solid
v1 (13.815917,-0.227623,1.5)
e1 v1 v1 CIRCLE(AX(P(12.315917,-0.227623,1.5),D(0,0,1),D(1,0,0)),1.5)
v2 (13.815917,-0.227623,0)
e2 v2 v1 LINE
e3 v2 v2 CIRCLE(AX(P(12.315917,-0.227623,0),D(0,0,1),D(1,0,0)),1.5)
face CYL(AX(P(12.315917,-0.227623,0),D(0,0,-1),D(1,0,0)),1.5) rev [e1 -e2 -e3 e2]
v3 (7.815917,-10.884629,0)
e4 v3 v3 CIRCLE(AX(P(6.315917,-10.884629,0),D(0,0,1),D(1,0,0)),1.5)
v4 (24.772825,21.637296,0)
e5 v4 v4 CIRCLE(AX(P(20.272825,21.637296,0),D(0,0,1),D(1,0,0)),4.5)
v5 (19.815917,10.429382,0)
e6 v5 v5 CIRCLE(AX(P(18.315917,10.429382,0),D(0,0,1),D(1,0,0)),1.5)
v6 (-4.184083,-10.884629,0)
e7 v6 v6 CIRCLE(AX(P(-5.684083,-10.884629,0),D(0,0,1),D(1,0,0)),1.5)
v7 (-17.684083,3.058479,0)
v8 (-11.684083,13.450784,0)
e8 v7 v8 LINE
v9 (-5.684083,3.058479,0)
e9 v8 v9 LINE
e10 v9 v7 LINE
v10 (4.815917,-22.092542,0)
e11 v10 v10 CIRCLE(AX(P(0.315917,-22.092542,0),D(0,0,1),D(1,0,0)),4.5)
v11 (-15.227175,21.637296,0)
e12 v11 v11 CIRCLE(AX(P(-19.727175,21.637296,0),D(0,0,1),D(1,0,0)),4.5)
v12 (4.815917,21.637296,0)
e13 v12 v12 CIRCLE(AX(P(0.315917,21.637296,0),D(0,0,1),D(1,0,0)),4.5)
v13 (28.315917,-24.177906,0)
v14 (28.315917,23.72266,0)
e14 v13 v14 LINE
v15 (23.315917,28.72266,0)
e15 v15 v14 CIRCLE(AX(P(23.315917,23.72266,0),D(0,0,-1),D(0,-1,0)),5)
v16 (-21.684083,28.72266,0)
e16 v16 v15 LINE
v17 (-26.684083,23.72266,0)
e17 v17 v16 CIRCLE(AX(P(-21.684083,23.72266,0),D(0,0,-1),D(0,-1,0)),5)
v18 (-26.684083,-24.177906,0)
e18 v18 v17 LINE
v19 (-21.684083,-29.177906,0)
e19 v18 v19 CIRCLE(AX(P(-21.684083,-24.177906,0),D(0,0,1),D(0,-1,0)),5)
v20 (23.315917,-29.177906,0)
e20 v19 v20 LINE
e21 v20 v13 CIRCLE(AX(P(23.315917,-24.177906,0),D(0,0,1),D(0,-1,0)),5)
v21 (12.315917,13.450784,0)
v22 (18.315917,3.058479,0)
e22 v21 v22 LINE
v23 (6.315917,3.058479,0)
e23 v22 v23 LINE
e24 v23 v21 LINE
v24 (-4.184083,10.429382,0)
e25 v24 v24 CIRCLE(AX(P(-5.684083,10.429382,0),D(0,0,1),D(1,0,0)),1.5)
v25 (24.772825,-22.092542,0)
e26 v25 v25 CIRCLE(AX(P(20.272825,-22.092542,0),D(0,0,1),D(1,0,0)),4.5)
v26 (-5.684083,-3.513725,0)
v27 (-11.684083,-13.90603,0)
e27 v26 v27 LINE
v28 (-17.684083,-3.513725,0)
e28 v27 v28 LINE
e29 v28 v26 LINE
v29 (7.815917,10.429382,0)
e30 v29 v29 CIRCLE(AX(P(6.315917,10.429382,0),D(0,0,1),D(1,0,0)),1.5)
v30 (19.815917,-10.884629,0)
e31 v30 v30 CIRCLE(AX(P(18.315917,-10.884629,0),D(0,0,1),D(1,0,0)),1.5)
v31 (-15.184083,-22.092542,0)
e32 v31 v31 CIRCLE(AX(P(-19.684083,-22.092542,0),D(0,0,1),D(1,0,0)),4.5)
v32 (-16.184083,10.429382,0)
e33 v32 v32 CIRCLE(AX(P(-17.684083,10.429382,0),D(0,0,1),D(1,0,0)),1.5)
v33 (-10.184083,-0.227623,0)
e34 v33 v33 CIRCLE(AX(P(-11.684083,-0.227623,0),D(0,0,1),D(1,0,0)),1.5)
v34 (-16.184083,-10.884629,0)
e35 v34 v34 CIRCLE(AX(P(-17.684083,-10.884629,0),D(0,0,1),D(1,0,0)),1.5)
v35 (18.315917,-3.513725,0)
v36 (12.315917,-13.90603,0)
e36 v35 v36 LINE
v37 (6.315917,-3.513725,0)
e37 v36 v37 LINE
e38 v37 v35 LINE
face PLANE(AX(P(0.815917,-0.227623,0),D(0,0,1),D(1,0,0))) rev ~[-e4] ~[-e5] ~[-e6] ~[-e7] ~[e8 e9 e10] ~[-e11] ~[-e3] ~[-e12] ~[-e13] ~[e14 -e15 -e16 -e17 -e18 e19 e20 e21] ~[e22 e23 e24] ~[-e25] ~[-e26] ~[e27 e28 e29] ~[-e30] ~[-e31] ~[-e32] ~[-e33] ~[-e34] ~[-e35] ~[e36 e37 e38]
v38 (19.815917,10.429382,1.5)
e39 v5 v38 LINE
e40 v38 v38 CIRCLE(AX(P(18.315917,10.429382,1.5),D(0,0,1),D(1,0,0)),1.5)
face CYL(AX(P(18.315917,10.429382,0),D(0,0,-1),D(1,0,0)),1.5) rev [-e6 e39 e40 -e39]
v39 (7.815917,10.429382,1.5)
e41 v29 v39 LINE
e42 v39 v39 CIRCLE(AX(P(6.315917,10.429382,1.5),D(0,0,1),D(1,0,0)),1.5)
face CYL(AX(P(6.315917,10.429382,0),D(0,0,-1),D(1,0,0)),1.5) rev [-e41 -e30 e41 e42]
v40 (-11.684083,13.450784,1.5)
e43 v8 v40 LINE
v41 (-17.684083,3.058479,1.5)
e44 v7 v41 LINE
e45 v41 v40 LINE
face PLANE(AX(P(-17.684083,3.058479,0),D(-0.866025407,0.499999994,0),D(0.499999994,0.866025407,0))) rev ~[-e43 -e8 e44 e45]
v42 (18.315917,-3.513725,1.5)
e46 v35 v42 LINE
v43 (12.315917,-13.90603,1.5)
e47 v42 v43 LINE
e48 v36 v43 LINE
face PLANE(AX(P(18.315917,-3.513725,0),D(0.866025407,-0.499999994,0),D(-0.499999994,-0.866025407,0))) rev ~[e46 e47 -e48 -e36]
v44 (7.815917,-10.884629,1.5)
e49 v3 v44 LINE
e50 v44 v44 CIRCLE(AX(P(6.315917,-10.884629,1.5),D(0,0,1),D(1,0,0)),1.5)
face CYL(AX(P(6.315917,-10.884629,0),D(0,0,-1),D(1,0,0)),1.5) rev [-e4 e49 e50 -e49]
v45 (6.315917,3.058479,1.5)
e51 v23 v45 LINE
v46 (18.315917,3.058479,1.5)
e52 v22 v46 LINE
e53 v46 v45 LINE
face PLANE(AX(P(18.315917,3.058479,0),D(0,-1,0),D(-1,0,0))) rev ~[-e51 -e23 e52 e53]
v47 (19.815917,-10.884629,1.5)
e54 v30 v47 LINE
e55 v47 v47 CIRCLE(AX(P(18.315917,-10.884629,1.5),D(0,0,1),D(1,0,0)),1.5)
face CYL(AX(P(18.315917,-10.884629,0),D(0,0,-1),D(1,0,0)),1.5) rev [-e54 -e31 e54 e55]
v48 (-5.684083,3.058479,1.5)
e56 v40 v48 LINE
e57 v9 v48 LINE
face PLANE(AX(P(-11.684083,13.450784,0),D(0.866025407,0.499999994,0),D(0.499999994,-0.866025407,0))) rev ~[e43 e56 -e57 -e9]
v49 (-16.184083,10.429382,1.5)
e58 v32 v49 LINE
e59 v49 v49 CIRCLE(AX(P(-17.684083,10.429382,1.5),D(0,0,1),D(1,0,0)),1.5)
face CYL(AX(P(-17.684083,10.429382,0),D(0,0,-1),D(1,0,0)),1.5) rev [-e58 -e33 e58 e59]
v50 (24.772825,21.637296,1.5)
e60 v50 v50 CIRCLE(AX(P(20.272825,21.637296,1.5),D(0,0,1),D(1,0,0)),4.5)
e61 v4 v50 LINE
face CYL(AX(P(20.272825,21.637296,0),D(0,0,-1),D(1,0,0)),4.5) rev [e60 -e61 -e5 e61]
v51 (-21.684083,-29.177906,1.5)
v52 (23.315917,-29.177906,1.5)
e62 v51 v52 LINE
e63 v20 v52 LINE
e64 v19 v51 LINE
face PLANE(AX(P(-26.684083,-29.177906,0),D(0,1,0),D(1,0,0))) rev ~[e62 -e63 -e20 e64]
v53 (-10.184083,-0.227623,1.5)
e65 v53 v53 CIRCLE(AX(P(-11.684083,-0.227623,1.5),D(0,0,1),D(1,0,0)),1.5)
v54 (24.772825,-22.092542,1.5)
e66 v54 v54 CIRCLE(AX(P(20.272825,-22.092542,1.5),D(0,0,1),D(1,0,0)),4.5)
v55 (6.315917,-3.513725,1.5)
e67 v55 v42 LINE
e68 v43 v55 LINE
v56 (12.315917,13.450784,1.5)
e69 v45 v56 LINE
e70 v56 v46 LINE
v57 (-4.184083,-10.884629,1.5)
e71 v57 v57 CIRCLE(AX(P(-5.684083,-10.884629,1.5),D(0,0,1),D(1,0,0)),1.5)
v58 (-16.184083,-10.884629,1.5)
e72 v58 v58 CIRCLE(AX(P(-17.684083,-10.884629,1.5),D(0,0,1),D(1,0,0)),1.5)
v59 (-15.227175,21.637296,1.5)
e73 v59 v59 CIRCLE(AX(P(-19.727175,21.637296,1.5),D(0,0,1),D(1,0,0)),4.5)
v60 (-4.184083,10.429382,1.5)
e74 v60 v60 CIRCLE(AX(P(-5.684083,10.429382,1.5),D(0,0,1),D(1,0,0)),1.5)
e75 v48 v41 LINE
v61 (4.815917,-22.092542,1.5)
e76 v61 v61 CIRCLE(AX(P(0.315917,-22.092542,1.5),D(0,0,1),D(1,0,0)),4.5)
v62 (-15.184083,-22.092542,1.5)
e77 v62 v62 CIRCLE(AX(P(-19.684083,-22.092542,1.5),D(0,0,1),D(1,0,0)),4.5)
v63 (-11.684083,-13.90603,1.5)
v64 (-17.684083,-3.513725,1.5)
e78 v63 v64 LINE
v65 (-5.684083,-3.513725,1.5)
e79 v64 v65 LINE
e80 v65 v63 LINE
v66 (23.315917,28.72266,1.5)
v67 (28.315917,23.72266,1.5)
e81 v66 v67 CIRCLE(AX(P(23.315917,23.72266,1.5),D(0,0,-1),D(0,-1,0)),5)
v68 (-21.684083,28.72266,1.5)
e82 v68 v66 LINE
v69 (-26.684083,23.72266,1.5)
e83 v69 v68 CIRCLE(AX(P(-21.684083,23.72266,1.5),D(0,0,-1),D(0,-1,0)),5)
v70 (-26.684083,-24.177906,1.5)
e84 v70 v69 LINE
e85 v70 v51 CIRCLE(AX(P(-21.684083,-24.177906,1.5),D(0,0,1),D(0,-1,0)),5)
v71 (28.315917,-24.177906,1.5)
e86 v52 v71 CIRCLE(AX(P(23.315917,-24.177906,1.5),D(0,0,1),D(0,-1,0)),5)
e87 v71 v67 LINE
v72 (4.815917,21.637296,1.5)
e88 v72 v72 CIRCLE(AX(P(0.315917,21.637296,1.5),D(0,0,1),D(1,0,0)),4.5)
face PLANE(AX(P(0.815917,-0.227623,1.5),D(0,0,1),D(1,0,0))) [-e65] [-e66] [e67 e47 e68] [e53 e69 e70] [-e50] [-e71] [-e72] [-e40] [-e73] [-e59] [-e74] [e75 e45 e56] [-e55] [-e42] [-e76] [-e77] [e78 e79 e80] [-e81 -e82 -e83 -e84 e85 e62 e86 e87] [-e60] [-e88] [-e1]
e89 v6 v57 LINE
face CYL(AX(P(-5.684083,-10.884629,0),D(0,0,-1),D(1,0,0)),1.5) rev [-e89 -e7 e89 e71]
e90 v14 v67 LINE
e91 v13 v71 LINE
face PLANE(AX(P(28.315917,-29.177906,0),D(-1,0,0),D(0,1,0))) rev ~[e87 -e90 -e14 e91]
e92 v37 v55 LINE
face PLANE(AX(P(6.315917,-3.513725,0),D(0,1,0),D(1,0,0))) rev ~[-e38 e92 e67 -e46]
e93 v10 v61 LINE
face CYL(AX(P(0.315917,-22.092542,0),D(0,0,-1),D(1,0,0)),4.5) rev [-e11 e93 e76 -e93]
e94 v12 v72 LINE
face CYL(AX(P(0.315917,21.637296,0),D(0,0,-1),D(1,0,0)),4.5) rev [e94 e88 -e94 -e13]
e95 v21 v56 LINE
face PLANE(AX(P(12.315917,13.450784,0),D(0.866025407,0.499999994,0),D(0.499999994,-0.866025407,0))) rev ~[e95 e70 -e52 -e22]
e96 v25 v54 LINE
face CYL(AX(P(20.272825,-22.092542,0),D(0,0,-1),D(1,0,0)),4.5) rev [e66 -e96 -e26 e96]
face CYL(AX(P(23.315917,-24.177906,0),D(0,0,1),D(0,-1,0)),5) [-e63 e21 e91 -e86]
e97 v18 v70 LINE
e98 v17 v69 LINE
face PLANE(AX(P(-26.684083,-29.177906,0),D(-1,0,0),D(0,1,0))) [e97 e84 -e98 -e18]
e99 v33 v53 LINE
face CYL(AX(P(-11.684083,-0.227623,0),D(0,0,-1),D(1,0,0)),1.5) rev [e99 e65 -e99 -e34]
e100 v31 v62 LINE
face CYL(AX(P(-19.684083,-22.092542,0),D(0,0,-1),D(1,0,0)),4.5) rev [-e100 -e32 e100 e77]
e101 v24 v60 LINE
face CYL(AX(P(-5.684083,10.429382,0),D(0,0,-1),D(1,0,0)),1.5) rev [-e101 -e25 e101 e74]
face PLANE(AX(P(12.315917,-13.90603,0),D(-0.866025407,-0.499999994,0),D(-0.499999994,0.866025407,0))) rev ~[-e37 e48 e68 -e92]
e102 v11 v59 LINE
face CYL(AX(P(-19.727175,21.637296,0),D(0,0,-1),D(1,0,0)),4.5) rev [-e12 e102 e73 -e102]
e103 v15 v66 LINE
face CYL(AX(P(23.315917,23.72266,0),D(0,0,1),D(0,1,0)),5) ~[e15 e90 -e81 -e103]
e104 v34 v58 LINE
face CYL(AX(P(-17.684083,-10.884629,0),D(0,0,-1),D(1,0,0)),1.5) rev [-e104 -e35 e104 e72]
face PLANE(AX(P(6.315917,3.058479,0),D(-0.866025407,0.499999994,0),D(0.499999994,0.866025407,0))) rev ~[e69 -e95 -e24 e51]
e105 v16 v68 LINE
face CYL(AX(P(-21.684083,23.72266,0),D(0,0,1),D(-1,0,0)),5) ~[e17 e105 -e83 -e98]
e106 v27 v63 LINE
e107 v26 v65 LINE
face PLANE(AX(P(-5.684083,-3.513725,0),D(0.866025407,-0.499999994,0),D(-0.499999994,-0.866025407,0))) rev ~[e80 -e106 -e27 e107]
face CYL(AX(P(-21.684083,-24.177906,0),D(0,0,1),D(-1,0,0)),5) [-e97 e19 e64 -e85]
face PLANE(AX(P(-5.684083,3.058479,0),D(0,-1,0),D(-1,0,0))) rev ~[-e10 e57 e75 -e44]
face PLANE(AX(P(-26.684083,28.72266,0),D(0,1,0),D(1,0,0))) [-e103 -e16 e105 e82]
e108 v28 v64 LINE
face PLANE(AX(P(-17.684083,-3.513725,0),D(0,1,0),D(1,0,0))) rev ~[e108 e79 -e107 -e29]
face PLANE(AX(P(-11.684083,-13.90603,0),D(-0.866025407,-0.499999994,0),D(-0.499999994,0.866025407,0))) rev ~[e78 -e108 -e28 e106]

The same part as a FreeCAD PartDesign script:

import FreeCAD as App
import Part
import Sketcher
Q = App.Units.Quantity


def edges_at(feature, points):
    """Names of the edges that pass closest to the given points."""
    edges = feature.Shape.Edges
    near = lambda p: min(range(len(edges)), key=lambda i: edges[i].distToShape(Part.Vertex(*p))[0])
    return sorted({f"Edge{near(p) + 1}" for p in points})

doc = App.newDocument("Part")
body = doc.addObject("PartDesign::Body", "Body")

sketch1 = body.newObject("Sketcher::SketchObject", "Sketch")
sketch1.AttachmentSupport = (doc.getObject("XY_Plane"), [""])
sketch1.MapMode = "FlatFace"
sketch1.addGeometry(Part.LineSegment(App.Vector(-26.684083, 28.72266, 0), App.Vector(-26.684083, -29.177906, 0)), False)
sketch1.addGeometry(Part.LineSegment(App.Vector(-26.684083, -29.177906, 0), App.Vector(28.315917, -29.177906, 0)), False)
sketch1.addGeometry(Part.LineSegment(App.Vector(28.315917, -29.177906, 0), App.Vector(28.315917, 28.72266, 0)), False)
sketch1.addGeometry(Part.LineSegment(App.Vector(28.315917, 28.72266, 0), App.Vector(-26.684083, 28.72266, 0)), False)
sketch1.addGeometry(Part.Circle(App.Vector(-19.684083, -22.092542, 0), App.Vector(0, 0, 1), 4.5), False)
sketch1.addGeometry(Part.Circle(App.Vector(-17.684083, -10.884629, 0), App.Vector(0, 0, 1), 1.5), False)
sketch1.addGeometry(Part.LineSegment(App.Vector(-5.684083, -3.513725, 0), App.Vector(-11.684083, -13.90603, 0)), False)
sketch1.addGeometry(Part.LineSegment(App.Vector(-11.684083, -13.90603, 0), App.Vector(-17.684083, -3.513725, 0)), False)
sketch1.addGeometry(Part.LineSegment(App.Vector(-17.684083, -3.513725, 0), App.Vector(-5.684083, -3.513725, 0)), False)
sketch1.addGeometry(Part.Circle(App.Vector(-5.684083, -10.884629, 0), App.Vector(0, 0, 1), 1.5), False)
sketch1.addGeometry(Part.Circle(App.Vector(0.315917, -22.092542, 0), App.Vector(0, 0, 1), 4.5), False)
sketch1.addGeometry(Part.Circle(App.Vector(20.272825, -22.092542, 0), App.Vector(0, 0, 1), 4.5), False)
sketch1.addGeometry(Part.Circle(App.Vector(6.315917, -10.884629, 0), App.Vector(0, 0, 1), 1.5), False)
sketch1.addGeometry(Part.LineSegment(App.Vector(18.315917, -3.513725, 0), App.Vector(12.315917, -13.90603, 0)), False)
sketch1.addGeometry(Part.LineSegment(App.Vector(12.315917, -13.90603, 0), App.Vector(6.315917, -3.513725, 0)), False)
sketch1.addGeometry(Part.LineSegment(App.Vector(6.315917, -3.513725, 0), App.Vector(18.315917, -3.513725, 0)), False)
sketch1.addGeometry(Part.Circle(App.Vector(18.315917, -10.884629, 0), App.Vector(0, 0, 1), 1.5), False)
sketch1.addGeometry(Part.Circle(App.Vector(-17.684083, 10.429382, 0), App.Vector(0, 0, 1), 1.5), False)
sketch1.addGeometry(Part.Circle(App.Vector(-11.684083, -0.227623, 0), App.Vector(0, 0, 1), 1.5), False)
sketch1.addGeometry(Part.LineSegment(App.Vector(-11.684083, 13.450784, 0), App.Vector(-5.684083, 3.058479, 0)), False)
sketch1.addGeometry(Part.LineSegment(App.Vector(-5.684083, 3.058479, 0), App.Vector(-17.684083, 3.058479, 0)), False)
sketch1.addGeometry(Part.LineSegment(App.Vector(-17.684083, 3.058479, 0), App.Vector(-11.684083, 13.450784, 0)), False)
sketch1.addGeometry(Part.Circle(App.Vector(-5.684083, 10.429382, 0), App.Vector(0, 0, 1), 1.5), False)
sketch1.addGeometry(Part.Circle(App.Vector(-19.727175, 21.637296, 0), App.Vector(0, 0, 1), 4.5), False)
sketch1.addGeometry(Part.Circle(App.Vector(12.315917, -0.227623, 0), App.Vector(0, 0, 1), 1.5), False)
sketch1.addGeometry(Part.Circle(App.Vector(6.315917, 10.429382, 0), App.Vector(0, 0, 1), 1.5), False)
sketch1.addGeometry(Part.LineSegment(App.Vector(12.315917, 13.450784, 0), App.Vector(18.315917, 3.058479, 0)), False)
sketch1.addGeometry(Part.LineSegment(App.Vector(18.315917, 3.058479, 0), App.Vector(6.315917, 3.058479, 0)), False)
sketch1.addGeometry(Part.LineSegment(App.Vector(6.315917, 3.058479, 0), App.Vector(12.315917, 13.450784, 0)), False)
sketch1.addGeometry(Part.Circle(App.Vector(18.315917, 10.429382, 0), App.Vector(0, 0, 1), 1.5), False)
sketch1.addGeometry(Part.Circle(App.Vector(0.315917, 21.637296, 0), App.Vector(0, 0, 1), 4.5), False)
sketch1.addGeometry(Part.Circle(App.Vector(20.272825, 21.637296, 0), App.Vector(0, 0, 1), 4.5), False)
sketch1.addConstraint(Sketcher.Constraint("Coincident", 0, 2, 1, 1))
sketch1.addConstraint(Sketcher.Constraint("Coincident", 1, 2, 2, 1))
sketch1.addConstraint(Sketcher.Constraint("Coincident", 2, 2, 3, 1))
sketch1.addConstraint(Sketcher.Constraint("Coincident", 3, 2, 0, 1))
sketch1.addConstraint(Sketcher.Constraint("Coincident", 6, 2, 7, 1))
sketch1.addConstraint(Sketcher.Constraint("Coincident", 7, 2, 8, 1))
sketch1.addConstraint(Sketcher.Constraint("Coincident", 8, 2, 6, 1))
sketch1.addConstraint(Sketcher.Constraint("Coincident", 13, 2, 14, 1))
sketch1.addConstraint(Sketcher.Constraint("Coincident", 14, 2, 15, 1))
sketch1.addConstraint(Sketcher.Constraint("Coincident", 15, 2, 13, 1))
sketch1.addConstraint(Sketcher.Constraint("Coincident", 19, 2, 20, 1))
sketch1.addConstraint(Sketcher.Constraint("Coincident", 20, 2, 21, 1))
sketch1.addConstraint(Sketcher.Constraint("Coincident", 21, 2, 19, 1))
sketch1.addConstraint(Sketcher.Constraint("Coincident", 26, 2, 27, 1))
sketch1.addConstraint(Sketcher.Constraint("Coincident", 27, 2, 28, 1))
sketch1.addConstraint(Sketcher.Constraint("Coincident", 28, 2, 26, 1))
sketch1.addConstraint(Sketcher.Constraint("Vertical", 0))
sketch1.addConstraint(Sketcher.Constraint("Horizontal", 1))
sketch1.addConstraint(Sketcher.Constraint("Vertical", 2))
sketch1.addConstraint(Sketcher.Constraint("Horizontal", 3))
sketch1.addConstraint(Sketcher.Constraint("Horizontal", 8))
sketch1.addConstraint(Sketcher.Constraint("Horizontal", 15))
sketch1.addConstraint(Sketcher.Constraint("Horizontal", 20))
sketch1.addConstraint(Sketcher.Constraint("Horizontal", 27))
sketch1.addConstraint(Sketcher.Constraint("Equal", 5, 9))
sketch1.addConstraint(Sketcher.Constraint("Equal", 4, 10))
sketch1.addConstraint(Sketcher.Constraint("Equal", 10, 11))
sketch1.addConstraint(Sketcher.Constraint("Equal", 9, 12))
sketch1.addConstraint(Sketcher.Constraint("Equal", 12, 16))
sketch1.addConstraint(Sketcher.Constraint("Equal", 16, 17))
sketch1.addConstraint(Sketcher.Constraint("Equal", 17, 18))
sketch1.addConstraint(Sketcher.Constraint("Equal", 18, 22))
sketch1.addConstraint(Sketcher.Constraint("Equal", 11, 23))
sketch1.addConstraint(Sketcher.Constraint("Equal", 22, 24))
sketch1.addConstraint(Sketcher.Constraint("Equal", 24, 25))
sketch1.addConstraint(Sketcher.Constraint("Equal", 25, 29))
sketch1.addConstraint(Sketcher.Constraint("Equal", 23, 30))
sketch1.addConstraint(Sketcher.Constraint("Equal", 30, 31))
sketch1.addConstraint(Sketcher.Constraint("Parallel", 6, 13))
sketch1.addConstraint(Sketcher.Constraint("Parallel", 7, 14))
sketch1.addConstraint(Sketcher.Constraint("Parallel", 14, 19))
sketch1.addConstraint(Sketcher.Constraint("Parallel", 13, 21))
sketch1.addConstraint(Sketcher.Constraint("Parallel", 19, 26))
sketch1.addConstraint(Sketcher.Constraint("Parallel", 21, 28))
sketch1.addConstraint(Sketcher.Constraint("Horizontal", 5, 3, 9, 3))
sketch1.addConstraint(Sketcher.Constraint("Horizontal", 4, 3, 10, 3))
sketch1.addConstraint(Sketcher.Constraint("Horizontal", 10, 3, 11, 3))
sketch1.addConstraint(Sketcher.Constraint("Horizontal", 9, 3, 12, 3))
sketch1.addConstraint(Sketcher.Constraint("Horizontal", 12, 3, 16, 3))
sketch1.addConstraint(Sketcher.Constraint("Horizontal", 17, 3, 22, 3))
sketch1.addConstraint(Sketcher.Constraint("Horizontal", 18, 3, 24, 3))
sketch1.addConstraint(Sketcher.Constraint("Horizontal", 22, 3, 25, 3))
sketch1.addConstraint(Sketcher.Constraint("Horizontal", 25, 3, 29, 3))
sketch1.addConstraint(Sketcher.Constraint("Horizontal", 23, 3, 30, 3))
sketch1.addConstraint(Sketcher.Constraint("Horizontal", 30, 3, 31, 3))
sketch1.addConstraint(Sketcher.Constraint("Horizontal", 6, 2, 13, 2))
sketch1.addConstraint(Sketcher.Constraint("Horizontal", 8, 2, 14, 2))
sketch1.addConstraint(Sketcher.Constraint("Horizontal", 20, 2, 26, 2))
sketch1.addConstraint(Sketcher.Constraint("Horizontal", 21, 2, 28, 2))
sketch1.addConstraint(Sketcher.Constraint("Vertical", 5, 3, 17, 3))
sketch1.addConstraint(Sketcher.Constraint("Vertical", 9, 3, 22, 3))
sketch1.addConstraint(Sketcher.Constraint("Vertical", 12, 3, 25, 3))
sketch1.addConstraint(Sketcher.Constraint("Vertical", 16, 3, 29, 3))
sketch1.addConstraint(Sketcher.Constraint("Vertical", 10, 3, 30, 3))
sketch1.addConstraint(Sketcher.Constraint("Vertical", 11, 3, 31, 3))
sketch1.addConstraint(Sketcher.Constraint("Vertical", 18, 3, 6, 2))
sketch1.addConstraint(Sketcher.Constraint("Vertical", 17, 3, 7, 2))
sketch1.addConstraint(Sketcher.Constraint("Vertical", 22, 3, 8, 2))
sketch1.addConstraint(Sketcher.Constraint("Vertical", 24, 3, 13, 2))
sketch1.addConstraint(Sketcher.Constraint("Vertical", 25, 3, 14, 2))
sketch1.addConstraint(Sketcher.Constraint("Vertical", 29, 3, 15, 2))
sketch1.addConstraint(Sketcher.Constraint("Vertical", 8, 2, 19, 2))
sketch1.addConstraint(Sketcher.Constraint("Vertical", 7, 2, 20, 2))
sketch1.addConstraint(Sketcher.Constraint("Vertical", 6, 2, 21, 2))
sketch1.addConstraint(Sketcher.Constraint("Vertical", 15, 2, 26, 2))
sketch1.addConstraint(Sketcher.Constraint("Diameter", 4, 9.0))
sketch1.addConstraint(Sketcher.Constraint("Diameter", 5, 3.0))
sketch1.addConstraint(Sketcher.Constraint("DistanceX", 1, 1, 1, 2, 55.0))
sketch1.addConstraint(Sketcher.Constraint("DistanceX", 8, 1, 8, 2, 12.0))
sketch1.addConstraint(Sketcher.Constraint("Angle", 6, Q("-120 deg")))
sketch1.addConstraint(Sketcher.Constraint("DistanceX", 4, 3, 5, 3, 2.0))
sketch1.addConstraint(Sketcher.Constraint("DistanceX", 9, 3, 10, 3, 6.0))
sketch1.addConstraint(Sketcher.Constraint("DistanceX", 9, 3, 12, 3, 12.0))
sketch1.addConstraint(Sketcher.Constraint("DistanceX", 0, 2, 4, 3, 7.0))
sketch1.addConstraint(Sketcher.Constraint("DistanceY", 6, 2, 9, 3, 3.021401))
sketch1.addConstraint(Sketcher.Constraint("DistanceY", 0, 2, 0, 1, 57.900566))
sketch1.addConstraint(Sketcher.Constraint("DistanceY", 5, 3, -1, 1, 10.884629))
sketch1.addConstraint(Sketcher.Constraint("DistanceY", -1, 1, 2, 2, 28.72266))
sketch1.addConstraint(Sketcher.Constraint("DistanceY", -1, 1, 19, 2, 3.058479))
sketch1.addConstraint(Sketcher.Constraint("DistanceX", 10, 3, 11, 3, 19.956908))
sketch1.addConstraint(Sketcher.Constraint("DistanceY", 5, 3, 17, 3, 21.314011))
sketch1.addConstraint(Sketcher.Constraint("DistanceY", 4, 3, 18, 3, 21.864919))
sketch1.addConstraint(Sketcher.Constraint("DistanceX", 23, 3, 17, 3, 2.043092))
sketch1.addConstraint(Sketcher.Constraint("DistanceY", 18, 3, 23, 3, 21.864919))
sketch1.addConstraint(Sketcher.Constraint("DistanceY", 21, 2, 23, 3, 8.186512))
sketch1.addConstraint(Sketcher.Constraint("DistanceX", 4, 3, -1, 1, 19.684083))
pad1 = body.newObject("PartDesign::Pad", "Pad")
pad1.Profile = sketch1
pad1.Length = 1.5
doc.recompute()

fillet = body.newObject("PartDesign::Fillet", "Fillet")
fillet.Base = (pad1, edges_at(pad1, [
    (-26.684, 28.723, 0.75),
    (-26.684, -29.178, 0.75),
    (28.316, -29.178, 0.75),
    (28.316, 28.723, 0.75),
]))
fillet.Radius = 5

doc.recompute()
